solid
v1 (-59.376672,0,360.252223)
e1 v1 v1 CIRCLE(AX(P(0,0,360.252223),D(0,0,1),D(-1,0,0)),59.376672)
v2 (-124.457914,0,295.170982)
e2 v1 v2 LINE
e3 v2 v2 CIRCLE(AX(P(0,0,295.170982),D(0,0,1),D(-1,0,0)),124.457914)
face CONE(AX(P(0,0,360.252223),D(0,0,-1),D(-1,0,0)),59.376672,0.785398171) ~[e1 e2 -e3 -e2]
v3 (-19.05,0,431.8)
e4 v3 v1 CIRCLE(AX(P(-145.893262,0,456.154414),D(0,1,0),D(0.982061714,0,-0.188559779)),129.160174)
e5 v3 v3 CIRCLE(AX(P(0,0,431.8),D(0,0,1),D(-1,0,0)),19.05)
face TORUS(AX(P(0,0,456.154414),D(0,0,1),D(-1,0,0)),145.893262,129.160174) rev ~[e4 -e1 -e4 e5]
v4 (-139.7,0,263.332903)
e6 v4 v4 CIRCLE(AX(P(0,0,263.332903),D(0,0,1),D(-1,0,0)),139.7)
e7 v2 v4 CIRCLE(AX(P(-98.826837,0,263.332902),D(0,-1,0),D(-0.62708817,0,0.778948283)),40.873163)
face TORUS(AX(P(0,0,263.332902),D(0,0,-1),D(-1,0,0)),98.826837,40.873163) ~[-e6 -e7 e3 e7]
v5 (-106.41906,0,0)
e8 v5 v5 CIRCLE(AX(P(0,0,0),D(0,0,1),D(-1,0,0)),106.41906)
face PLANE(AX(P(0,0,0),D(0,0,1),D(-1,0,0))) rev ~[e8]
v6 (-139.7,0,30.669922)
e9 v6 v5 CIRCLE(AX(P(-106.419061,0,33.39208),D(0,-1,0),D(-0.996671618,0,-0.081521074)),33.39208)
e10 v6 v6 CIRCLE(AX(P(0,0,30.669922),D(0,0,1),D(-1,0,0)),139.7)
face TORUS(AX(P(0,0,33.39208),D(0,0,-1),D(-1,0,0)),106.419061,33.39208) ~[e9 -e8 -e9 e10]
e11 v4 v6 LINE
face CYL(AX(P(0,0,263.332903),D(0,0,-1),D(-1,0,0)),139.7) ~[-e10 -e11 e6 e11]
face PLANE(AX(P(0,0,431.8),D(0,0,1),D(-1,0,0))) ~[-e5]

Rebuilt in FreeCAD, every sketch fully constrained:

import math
import FreeCAD as App
import Part
import Sketcher
Q = App.Units.Quantity

doc = App.newDocument("Part")
params = doc.addObject("Spreadsheet::Sheet", "Params")
for row, (alias, value) in enumerate([
    ("sketch1_height", "17 in"),
    ("sketch1_width", "0.75 in"),
    ("revolution_angle", "360 deg"),
], start=1):
    params.set(f"A{row}", alias)
    params.set(f"B{row}", "=" + value)
    params.setAlias(f"B{row}", alias)

body = doc.addObject("PartDesign::Body", "Body")

# Sketch on XZ plane
sketch1 = doc.addObject("Sketcher::SketchObject", "Sketch")
body.addObject(sketch1)
sketch1.AttachmentSupport = (doc.XZ_Plane, [""])
sketch1.MapMode = "FlatFace"
sketch1.addGeometry(Part.LineSegment(App.Vector(-106.41906, 0, 0), App.Vector(0, 0, 0)), False)
sketch1.addGeometry(Part.LineSegment(App.Vector(0, 0, 0), App.Vector(0, 431.8, 0)), False)
sketch1.addGeometry(Part.LineSegment(App.Vector(0, 431.8, 0), App.Vector(-19.05, 431.8, 0)), False)
sketch1.addGeometry(Part.ArcOfCircle(Part.Circle(App.Vector(-145.893262, 456.154414, 0), App.Vector(0, 0, 1), 129.160174), math.radians(-47.945319), math.radians(-10.868746)), False)
sketch1.addGeometry(Part.LineSegment(App.Vector(-59.376672, 360.252223, 0), App.Vector(-124.457914, 295.170982, 0)), False)
sketch1.addGeometry(Part.ArcOfCircle(Part.Circle(App.Vector(-98.826837, 263.332902, 0), App.Vector(0, 0, 1), 40.873163), math.radians(128.835618), math.radians(179.999998)), False)
sketch1.addGeometry(Part.LineSegment(App.Vector(-139.7, 263.332903, 0), App.Vector(-139.7, 30.669922, 0)), False)
sketch1.addGeometry(Part.ArcOfCircle(Part.Circle(App.Vector(-106.419061, 33.39208, 0), App.Vector(0, 0, 1), 33.39208), math.radians(-175.323998), math.radians(-89.999998)), False)
sketch1.addConstraint(Sketcher.Constraint("Coincident", 0, 2, 1, 1))
sketch1.addConstraint(Sketcher.Constraint("Coincident", 1, 2, 2, 1))
sketch1.addConstraint(Sketcher.Constraint("Coincident", 2, 2, 3, 2))
sketch1.addConstraint(Sketcher.Constraint("Coincident", 3, 1, 4, 1))
sketch1.addConstraint(Sketcher.Constraint("Coincident", 4, 2, 5, 1))
sketch1.addConstraint(Sketcher.Constraint("Coincident", 5, 2, 6, 1))
sketch1.addConstraint(Sketcher.Constraint("Coincident", 6, 2, 7, 1))
sketch1.addConstraint(Sketcher.Constraint("Coincident", 7, 2, 0, 1))
sketch1.addConstraint(Sketcher.Constraint("Horizontal", 0))
sketch1.addConstraint(Sketcher.Constraint("Vertical", 1))
sketch1.addConstraint(Sketcher.Constraint("Horizontal", 2))
sketch1.addConstraint(Sketcher.Constraint("Vertical", 6))
sketch1.addConstraint(Sketcher.Constraint("Coincident", 0, 2, -1, 1))
sketch1.addConstraint(Sketcher.Constraint("DistanceY", 1, 1, 1, 2, Q("17 in")))
sketch1.addConstraint(Sketcher.Constraint("DistanceX", 2, 2, 2, 1, Q("0.75 in")))
sketch1.addConstraint(Sketcher.Constraint("DistanceX", 5, 2, -1, 1, Q("5.5 in")))
sketch1.addConstraint(Sketcher.Constraint("Radius", 7, 33.39208))
sketch1.addConstraint(Sketcher.Constraint("Radius", 3, 129.160174))
sketch1.addConstraint(Sketcher.Constraint("Radius", 5, 40.873163))
sketch1.addConstraint(Sketcher.Constraint("DistanceX", 0, 1, 0, 2, 106.41906))
sketch1.addConstraint(Sketcher.Constraint("DistanceY", 6, 2, 6, 1, 232.662981))
sketch1.addConstraint(Sketcher.Constraint("DistanceY", -1, 1, 5, 3, 263.332902))
sketch1.addConstraint(Sketcher.Constraint("DistanceX", 3, 3, 7, 3, 39.4742))
sketch1.addConstraint(Sketcher.Constraint("DistanceX", 3, 3, -1, 1, 145.893262))
sketch1.addConstraint(Sketcher.Constraint("DistanceY", -1, 1, 4, 2, 295.170982))
sketch1.addConstraint(Sketcher.Constraint("DistanceY", 5, 3, 3, 1, 96.919321))
sketch1.setExpression("Constraints[13]", "Params.sketch1_height")
sketch1.setExpression("Constraints[14]", "Params.sketch1_width")
revolution = doc.addObject("PartDesign::Revolution", "Revolution")
body.addObject(revolution)
revolution.Profile = sketch1
revolution.ReferenceAxis = (sketch1, ["V_Axis"])
revolution.setExpression("Angle", "Params.revolution_angle")

doc.recompute()
